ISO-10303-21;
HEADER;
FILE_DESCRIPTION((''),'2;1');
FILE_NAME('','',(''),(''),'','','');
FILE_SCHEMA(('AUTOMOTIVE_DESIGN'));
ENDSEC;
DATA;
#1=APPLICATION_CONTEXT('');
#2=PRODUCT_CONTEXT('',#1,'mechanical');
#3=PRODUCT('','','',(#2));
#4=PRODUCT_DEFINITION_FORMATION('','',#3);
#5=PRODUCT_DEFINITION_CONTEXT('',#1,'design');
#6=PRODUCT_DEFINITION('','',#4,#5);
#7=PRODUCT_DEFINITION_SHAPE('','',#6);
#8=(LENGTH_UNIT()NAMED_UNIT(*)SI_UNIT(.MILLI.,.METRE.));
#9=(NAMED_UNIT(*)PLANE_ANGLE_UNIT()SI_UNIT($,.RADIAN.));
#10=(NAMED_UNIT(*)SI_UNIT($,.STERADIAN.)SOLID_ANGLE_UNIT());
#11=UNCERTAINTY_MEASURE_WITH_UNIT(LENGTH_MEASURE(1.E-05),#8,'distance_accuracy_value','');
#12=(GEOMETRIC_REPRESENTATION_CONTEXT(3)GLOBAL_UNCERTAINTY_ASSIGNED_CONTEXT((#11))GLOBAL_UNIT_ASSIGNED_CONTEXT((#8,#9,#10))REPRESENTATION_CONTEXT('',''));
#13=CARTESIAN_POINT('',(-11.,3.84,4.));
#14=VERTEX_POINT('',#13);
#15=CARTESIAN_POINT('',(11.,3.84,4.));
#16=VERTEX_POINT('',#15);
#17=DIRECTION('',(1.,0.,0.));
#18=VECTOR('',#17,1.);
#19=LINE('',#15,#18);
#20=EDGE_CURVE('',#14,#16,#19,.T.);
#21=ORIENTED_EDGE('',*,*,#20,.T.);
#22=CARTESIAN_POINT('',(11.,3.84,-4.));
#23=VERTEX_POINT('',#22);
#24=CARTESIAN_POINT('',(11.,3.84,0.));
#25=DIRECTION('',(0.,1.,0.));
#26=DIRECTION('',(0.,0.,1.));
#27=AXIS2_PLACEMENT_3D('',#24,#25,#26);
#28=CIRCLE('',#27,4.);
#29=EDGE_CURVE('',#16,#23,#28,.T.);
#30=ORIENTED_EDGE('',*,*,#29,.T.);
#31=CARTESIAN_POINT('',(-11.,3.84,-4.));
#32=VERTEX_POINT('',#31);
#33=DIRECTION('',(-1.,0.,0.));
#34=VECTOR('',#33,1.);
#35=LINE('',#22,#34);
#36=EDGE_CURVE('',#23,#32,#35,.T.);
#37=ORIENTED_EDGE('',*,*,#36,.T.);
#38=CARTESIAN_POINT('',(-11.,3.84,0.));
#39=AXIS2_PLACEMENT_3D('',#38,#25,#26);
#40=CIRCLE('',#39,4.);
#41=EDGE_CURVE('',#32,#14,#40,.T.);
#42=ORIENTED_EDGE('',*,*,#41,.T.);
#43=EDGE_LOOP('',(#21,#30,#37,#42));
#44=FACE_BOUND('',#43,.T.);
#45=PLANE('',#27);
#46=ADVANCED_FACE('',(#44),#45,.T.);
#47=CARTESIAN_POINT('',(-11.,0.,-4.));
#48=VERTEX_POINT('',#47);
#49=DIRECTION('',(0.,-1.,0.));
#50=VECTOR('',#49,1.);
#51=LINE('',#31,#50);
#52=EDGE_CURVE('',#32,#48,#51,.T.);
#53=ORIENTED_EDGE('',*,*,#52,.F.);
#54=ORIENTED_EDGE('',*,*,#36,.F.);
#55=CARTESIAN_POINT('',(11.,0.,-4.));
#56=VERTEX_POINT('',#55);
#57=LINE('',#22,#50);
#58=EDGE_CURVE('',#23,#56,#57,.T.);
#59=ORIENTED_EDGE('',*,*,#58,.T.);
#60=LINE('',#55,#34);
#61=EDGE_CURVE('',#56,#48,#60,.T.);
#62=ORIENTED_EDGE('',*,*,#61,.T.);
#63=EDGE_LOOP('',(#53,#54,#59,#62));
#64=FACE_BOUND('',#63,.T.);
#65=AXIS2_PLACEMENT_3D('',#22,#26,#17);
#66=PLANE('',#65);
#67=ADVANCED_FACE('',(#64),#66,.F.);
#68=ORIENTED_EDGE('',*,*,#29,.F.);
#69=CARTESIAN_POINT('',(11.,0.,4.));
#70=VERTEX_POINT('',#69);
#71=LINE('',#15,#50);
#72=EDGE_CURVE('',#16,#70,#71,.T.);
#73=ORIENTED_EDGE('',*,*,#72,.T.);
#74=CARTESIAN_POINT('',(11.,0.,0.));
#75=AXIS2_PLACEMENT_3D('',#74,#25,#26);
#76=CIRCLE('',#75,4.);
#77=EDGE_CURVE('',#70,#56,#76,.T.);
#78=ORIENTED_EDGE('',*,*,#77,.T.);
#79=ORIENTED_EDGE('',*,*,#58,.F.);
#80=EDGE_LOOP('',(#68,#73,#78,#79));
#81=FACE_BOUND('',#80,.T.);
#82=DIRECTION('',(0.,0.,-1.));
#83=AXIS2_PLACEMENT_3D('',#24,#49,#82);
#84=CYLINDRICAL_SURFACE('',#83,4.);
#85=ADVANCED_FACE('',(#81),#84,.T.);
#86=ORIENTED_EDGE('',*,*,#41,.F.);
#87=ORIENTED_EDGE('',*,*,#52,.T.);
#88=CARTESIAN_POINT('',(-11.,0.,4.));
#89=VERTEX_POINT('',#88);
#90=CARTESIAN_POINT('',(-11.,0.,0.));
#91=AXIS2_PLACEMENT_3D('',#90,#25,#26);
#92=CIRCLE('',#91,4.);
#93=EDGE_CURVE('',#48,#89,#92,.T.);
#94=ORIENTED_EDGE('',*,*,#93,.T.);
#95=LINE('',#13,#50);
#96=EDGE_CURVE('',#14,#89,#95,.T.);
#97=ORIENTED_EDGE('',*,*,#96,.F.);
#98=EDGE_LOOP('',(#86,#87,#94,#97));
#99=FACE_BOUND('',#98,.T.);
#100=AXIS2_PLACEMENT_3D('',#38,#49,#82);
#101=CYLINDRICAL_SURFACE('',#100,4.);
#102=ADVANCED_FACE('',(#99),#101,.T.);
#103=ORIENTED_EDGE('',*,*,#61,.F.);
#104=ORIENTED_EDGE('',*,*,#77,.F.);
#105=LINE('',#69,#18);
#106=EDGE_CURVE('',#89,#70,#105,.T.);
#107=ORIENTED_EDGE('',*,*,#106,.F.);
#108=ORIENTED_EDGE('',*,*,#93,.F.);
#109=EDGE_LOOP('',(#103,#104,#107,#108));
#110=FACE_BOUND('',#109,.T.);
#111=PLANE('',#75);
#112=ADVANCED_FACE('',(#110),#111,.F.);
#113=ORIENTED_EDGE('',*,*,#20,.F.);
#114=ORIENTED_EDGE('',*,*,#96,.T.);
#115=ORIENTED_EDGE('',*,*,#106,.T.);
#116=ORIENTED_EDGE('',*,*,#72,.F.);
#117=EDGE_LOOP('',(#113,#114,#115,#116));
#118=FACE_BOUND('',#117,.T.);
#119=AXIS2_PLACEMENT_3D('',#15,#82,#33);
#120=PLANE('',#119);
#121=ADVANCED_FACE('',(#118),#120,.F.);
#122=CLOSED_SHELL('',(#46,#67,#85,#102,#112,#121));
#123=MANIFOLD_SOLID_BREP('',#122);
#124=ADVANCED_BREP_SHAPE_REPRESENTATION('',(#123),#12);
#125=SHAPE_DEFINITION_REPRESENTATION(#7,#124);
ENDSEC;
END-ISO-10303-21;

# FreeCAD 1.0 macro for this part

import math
import FreeCAD as App
import Part
import Sketcher
from FreeCAD import Vector
Q = App.Units.Quantity

doc = App.newDocument("Part")
body = doc.addObject("PartDesign::Body", "Body")

sketch1 = doc.addObject("Sketcher::SketchObject", "Sketch")
body.addObject(sketch1)
sketch1.AttachmentSupport = (doc.XZ_Plane, [""])
sketch1.MapMode = "FlatFace"
sketch1.addGeometry([
    Part.LineSegment(Vector(-11, 4, 0), Vector(11, 4, 0)),
    Part.ArcOfCircle(Part.Circle(Vector(11, 0, 0), Vector(0, 0, 1), 4), math.radians(-90), math.radians(90)),
    Part.LineSegment(Vector(11, -4, 0), Vector(-11, -4, 0)),
    Part.ArcOfCircle(Part.Circle(Vector(-11, 0, 0), Vector(0, 0, 1), 4), math.radians(90), math.radians(270)),
], False)
sketch1.addConstraint([
    Sketcher.Constraint("Tangent", 0, 2, 1, 2),
    Sketcher.Constraint("Tangent", 1, 1, 2, 1),
    Sketcher.Constraint("Tangent", 2, 2, 3, 2),
    Sketcher.Constraint("Tangent", 3, 1, 0, 1),
    Sketcher.Constraint("Horizontal", 0),
    Sketcher.Constraint("Horizontal", 2),
    Sketcher.Constraint("Symmetric", 1, 3, 3, 3, -1, 1),
    Sketcher.Constraint("Radius", 1, Q("4 mm")),
    Sketcher.Constraint("DistanceX", 0, 1, 0, 2, Q("22 mm")),
])
pad1 = doc.addObject("PartDesign::Pad", "Pad")
body.addObject(pad1)
pad1.Profile = sketch1
pad1.Length = 3.84
pad1.Reversed = True

doc.recompute()
